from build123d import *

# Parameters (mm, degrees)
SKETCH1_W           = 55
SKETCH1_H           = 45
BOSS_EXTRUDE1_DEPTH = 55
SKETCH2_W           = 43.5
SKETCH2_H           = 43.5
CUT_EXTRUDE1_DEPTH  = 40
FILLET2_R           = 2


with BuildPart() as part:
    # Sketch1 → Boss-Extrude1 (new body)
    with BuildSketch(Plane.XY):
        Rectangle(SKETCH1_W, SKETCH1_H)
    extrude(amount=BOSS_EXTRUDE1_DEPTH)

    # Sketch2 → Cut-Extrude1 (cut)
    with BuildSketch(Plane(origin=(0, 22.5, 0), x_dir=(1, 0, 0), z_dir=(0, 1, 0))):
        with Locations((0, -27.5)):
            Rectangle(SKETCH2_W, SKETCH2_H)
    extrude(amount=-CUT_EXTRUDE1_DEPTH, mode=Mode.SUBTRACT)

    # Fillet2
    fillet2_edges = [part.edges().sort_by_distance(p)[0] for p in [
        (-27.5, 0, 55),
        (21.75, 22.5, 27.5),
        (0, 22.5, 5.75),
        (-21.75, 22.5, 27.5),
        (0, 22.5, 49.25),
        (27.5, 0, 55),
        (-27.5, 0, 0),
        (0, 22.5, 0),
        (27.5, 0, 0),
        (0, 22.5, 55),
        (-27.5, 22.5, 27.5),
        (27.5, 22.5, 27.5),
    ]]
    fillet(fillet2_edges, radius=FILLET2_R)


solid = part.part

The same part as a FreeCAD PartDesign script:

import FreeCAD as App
import Part
import Sketcher
from FreeCAD import Vector
Q = App.Units.Quantity


def edges_at(feature, points):
    """Names of the edges that pass closest to the given points."""
    edges = feature.Shape.Edges
    near = lambda p: min(range(len(edges)), key=lambda i: edges[i].distToShape(Part.Vertex(*p))[0])
    return sorted({f"Edge{near(p) + 1}" for p in points})


def add_polygon(sketch, points):
    """Adds a closed chain of lines whose ends are joined by coincident constraints."""
    first, n = sketch.GeometryCount, len(points)
    for a, b in zip(points, points[1:] + points[:1]):
        sketch.addGeometry(Part.LineSegment(App.Vector(*a, 0), App.Vector(*b, 0)), False)
    for i in range(n):
        sketch.addConstraint(Sketcher.Constraint("Coincident", first + i, 2, first + (i + 1) % n, 1))

doc = App.newDocument("Part")
body = doc.addObject("PartDesign::Body", "Body")

# Sketch on XY plane
sketch1 = body.newObject("Sketcher::SketchObject", "Sketch")
sketch1.AttachmentSupport = (doc.getObject("XY_Plane"), [""])
sketch1.MapMode = "FlatFace"
add_polygon(sketch1, [(-28, 22), (-28, -22), (28, -22), (28, 22)])  # lines 0-3
sketch1.addConstraint(Sketcher.Constraint("Vertical", 0))
sketch1.addConstraint(Sketcher.Constraint("Horizontal", 1))
sketch1.addConstraint(Sketcher.Constraint("Vertical", 2))
sketch1.addConstraint(Sketcher.Constraint("Horizontal", 3))
sketch1.addConstraint(Sketcher.Constraint("Symmetric", 0, 2, 2, 2, -1, 1))
sketch1.addConstraint(Sketcher.Constraint("DistanceX", 1, 1, 1, 2, Q("55 mm")))
sketch1.addConstraint(Sketcher.Constraint("DistanceY", 0, 2, 0, 1, Q("45 mm")))
pad1 = body.newObject("PartDesign::Pad", "Pad")
pad1.Profile = sketch1
pad1.Length = 55

# Sketch on XZ plane
sketch2 = body.newObject("Sketcher::SketchObject", "Sketch001")
sketch2.AttachmentSupport = (doc.getObject("XZ_Plane"), [""])
sketch2.MapMode = "FlatFace"
sketch2.AttachmentOffset = App.Placement(Vector(0, 0, -22.5), App.Rotation())
add_polygon(sketch2, [(-22, 6), (-22, 49), (22, 49), (22, 6)])  # lines 0-3
sketch2.addConstraint(Sketcher.Constraint("Vertical", 0))
sketch2.addConstraint(Sketcher.Constraint("Horizontal", 1))
sketch2.addConstraint(Sketcher.Constraint("Vertical", 2))
sketch2.addConstraint(Sketcher.Constraint("Horizontal", 3))
sketch2.addConstraint(Sketcher.Constraint("Equal", 3, 0))
sketch2.addConstraint(Sketcher.Constraint("DistanceX", 1, 1, 1, 2, Q("43.5 mm")))
sketch2.addConstraint(Sketcher.Constraint("DistanceX", 0, 2, -1, 1, Q("21.75 mm")))
sketch2.addConstraint(Sketcher.Constraint("DistanceY", -1, 1, 0, 2, Q("49.25 mm")))
pocket1 = body.newObject("PartDesign::Pocket", "Pocket")
pocket1.Profile = sketch2
pocket1.Length = 40
pocket1.Reversed = True
doc.recompute()

fillet = body.newObject("PartDesign::Fillet", "Fillet")
fillet.Base = (pocket1, edges_at(pocket1, [
    (-27.5, 0, 55),
    (21.75, 22.5, 27.5),
    (0, 22.5, 5.75),
    (-21.75, 22.5, 27.5),
    (0, 22.5, 49.25),
    (27.5, 0, 55),
    (-27.5, 0, 0),
    (0, 22.5, 0),
    (27.5, 0, 0),
    (0, 22.5, 55),
    (-27.5, 22.5, 27.5),
    (27.5, 22.5, 27.5),
]))
fillet.Radius = 2

doc.recompute()
